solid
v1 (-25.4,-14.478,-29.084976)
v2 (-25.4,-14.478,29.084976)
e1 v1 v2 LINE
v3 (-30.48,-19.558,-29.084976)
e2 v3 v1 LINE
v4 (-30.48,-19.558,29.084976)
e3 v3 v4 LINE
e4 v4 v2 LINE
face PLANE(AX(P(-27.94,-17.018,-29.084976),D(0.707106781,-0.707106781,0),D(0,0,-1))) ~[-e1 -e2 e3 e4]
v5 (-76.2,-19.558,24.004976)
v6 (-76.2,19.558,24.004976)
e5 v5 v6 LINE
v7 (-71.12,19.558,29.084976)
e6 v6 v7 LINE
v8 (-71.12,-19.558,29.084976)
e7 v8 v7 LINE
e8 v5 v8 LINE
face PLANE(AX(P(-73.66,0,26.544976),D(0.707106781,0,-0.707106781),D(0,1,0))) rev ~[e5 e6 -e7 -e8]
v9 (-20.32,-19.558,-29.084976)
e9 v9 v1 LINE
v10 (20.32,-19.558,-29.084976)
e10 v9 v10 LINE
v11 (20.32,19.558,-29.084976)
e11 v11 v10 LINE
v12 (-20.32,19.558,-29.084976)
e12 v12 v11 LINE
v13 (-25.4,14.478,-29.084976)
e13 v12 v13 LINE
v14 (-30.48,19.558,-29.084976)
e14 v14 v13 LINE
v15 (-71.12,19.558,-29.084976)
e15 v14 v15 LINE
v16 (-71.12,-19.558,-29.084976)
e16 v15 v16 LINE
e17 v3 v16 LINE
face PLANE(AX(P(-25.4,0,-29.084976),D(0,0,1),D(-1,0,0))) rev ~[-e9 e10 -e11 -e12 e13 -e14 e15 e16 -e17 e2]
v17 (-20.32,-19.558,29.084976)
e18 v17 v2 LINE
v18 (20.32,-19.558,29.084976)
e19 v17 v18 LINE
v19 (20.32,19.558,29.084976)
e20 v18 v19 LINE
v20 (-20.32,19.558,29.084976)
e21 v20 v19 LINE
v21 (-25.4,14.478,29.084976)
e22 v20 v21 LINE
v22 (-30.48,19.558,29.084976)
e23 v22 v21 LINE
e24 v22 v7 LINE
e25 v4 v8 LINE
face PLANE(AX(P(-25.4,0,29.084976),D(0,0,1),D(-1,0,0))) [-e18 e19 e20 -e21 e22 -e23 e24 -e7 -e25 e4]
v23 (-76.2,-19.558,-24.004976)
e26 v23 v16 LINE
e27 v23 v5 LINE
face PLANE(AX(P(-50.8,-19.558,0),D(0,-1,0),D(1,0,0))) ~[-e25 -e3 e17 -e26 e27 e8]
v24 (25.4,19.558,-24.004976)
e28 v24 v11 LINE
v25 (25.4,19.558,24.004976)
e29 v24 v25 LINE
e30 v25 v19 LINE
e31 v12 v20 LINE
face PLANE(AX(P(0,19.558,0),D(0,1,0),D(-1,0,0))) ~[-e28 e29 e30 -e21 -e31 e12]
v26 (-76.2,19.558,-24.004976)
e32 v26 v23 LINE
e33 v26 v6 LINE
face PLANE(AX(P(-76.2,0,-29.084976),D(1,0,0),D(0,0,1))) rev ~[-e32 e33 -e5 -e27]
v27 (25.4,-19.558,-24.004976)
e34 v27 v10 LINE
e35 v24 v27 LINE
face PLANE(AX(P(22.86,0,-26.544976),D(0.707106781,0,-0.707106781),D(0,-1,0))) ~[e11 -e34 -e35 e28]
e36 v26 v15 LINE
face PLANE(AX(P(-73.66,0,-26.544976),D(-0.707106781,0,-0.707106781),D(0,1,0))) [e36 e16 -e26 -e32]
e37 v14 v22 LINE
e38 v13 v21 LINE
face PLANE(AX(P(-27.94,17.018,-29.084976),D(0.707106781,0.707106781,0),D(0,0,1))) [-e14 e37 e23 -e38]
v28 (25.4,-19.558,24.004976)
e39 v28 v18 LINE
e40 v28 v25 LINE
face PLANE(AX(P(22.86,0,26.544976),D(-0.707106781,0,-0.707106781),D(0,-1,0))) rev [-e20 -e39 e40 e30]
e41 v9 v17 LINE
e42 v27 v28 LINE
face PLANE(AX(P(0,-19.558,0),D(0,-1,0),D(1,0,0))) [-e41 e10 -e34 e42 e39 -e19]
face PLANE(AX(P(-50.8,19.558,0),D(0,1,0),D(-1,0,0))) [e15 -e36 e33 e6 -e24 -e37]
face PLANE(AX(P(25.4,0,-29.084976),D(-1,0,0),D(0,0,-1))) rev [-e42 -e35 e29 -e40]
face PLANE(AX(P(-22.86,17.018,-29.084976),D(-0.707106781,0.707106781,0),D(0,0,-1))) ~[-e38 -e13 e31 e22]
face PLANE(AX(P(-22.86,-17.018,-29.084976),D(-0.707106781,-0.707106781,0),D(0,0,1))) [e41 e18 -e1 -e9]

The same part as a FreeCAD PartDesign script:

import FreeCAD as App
import Part
import Sketcher

V = App.Vector
Q = App.Units.Quantity


def edges_at(feature, points):
    """Names of the edges that pass closest to the given points."""
    edges = feature.Shape.Edges
    near = lambda p: min(range(len(edges)), key=lambda i: edges[i].distToShape(Part.Vertex(*p))[0])
    return sorted({f"Edge{near(p) + 1}" for p in points})


def add_polygon(sketch, points):
    """Adds a closed chain of lines whose ends are joined by coincident constraints."""
    first, n = sketch.GeometryCount, len(points)
    for a, b in zip(points, points[1:] + points[:1]):
        sketch.addGeometry(Part.LineSegment(App.Vector(*a, 0), App.Vector(*b, 0)), False)
    for i in range(n):
        sketch.addConstraint(Sketcher.Constraint("Coincident", first + i, 2, first + (i + 1) % n, 1))

doc = App.newDocument("Part")
body = doc.addObject("PartDesign::Body", "Body")

# Sketch on XZ plane
sketch1 = doc.addObject("Sketcher::SketchObject", "Sketch")
body.addObject(sketch1)
sketch1.AttachmentSupport = (doc.XZ_Plane, [""])
sketch1.MapMode = "FlatFace"
add_polygon(sketch1, [(-25, 29), (-25, -29), (25, -29), (25, 29)])  # lines 0-3
sketch1.addConstraint(Sketcher.Constraint("Vertical", 0))
sketch1.addConstraint(Sketcher.Constraint("Horizontal", 1))
sketch1.addConstraint(Sketcher.Constraint("Vertical", 2))
sketch1.addConstraint(Sketcher.Constraint("Horizontal", 3))
sketch1.addConstraint(Sketcher.Constraint("Symmetric", 0, 2, 2, 2, -1, 1))
sketch1.addConstraint(Sketcher.Constraint("DistanceX", 1, 1, 1, 2, Q("2 in")))
sketch1.addConstraint(Sketcher.Constraint("DistanceY", 0, 2, 0, 1, Q("58.169952 mm")))
pad1 = doc.addObject("PartDesign::Pad", "Pad")
body.addObject(pad1)
pad1.Profile = sketch1
pad1.Length = Q("0.77 in")
doc.recompute()

chamfer = doc.addObject("PartDesign::Chamfer", "Chamfer")
body.addObject(chamfer)
chamfer.Base = (pad1, edges_at(pad1, [(25.4, -9.779, 29.085)]))
chamfer.Size = Q("0.2 in")
doc.recompute()

chamfer2 = doc.addObject("PartDesign::Chamfer", "Chamfer001")
body.addObject(chamfer2)
chamfer2.Base = (chamfer, edges_at(chamfer, [(25.4, -9.779, -29.085), (-25.4, -19.558, 0)]))
chamfer2.Size = Q("0.2 in")
body2 = doc.addObject("PartDesign::Body", "Body001")
doc.recompute()

body2.BaseFeature = body
doc.recompute()

mirroring = doc.addObject("Part::Mirroring", "Mirroring")
mirroring.Source = body
mirroring.Base = V(-25.4, -7.239, 0)
mirroring.Normal = V(-1, 0, 0)
body3 = doc.addObject("PartDesign::Body", "Body002")
body3.BaseFeature = mirroring
boolean = doc.addObject("PartDesign::Boolean", "Boolean")
body2.addObject(boolean)
boolean.Type = "Fuse"
boolean.addObjects([body3])
doc.recompute()
body4 = doc.addObject("PartDesign::Body", "Body003")
doc.recompute()

body4.BaseFeature = body2
doc.recompute()

mirroring2 = doc.addObject("Part::Mirroring", "Mirroring001")
mirroring2.Source = body2
mirroring2.Base = V(-25.4, 0, 0)
mirroring2.Normal = V(0, 1, 0)
body5 = doc.addObject("PartDesign::Body", "Body004")
body5.BaseFeature = mirroring2
boolean2 = doc.addObject("PartDesign::Boolean", "Boolean001")
body4.addObject(boolean2)
boolean2.Type = "Fuse"
boolean2.addObjects([body5])
doc.recompute()
mirroring.Visibility = False
mirroring2.Visibility = False

doc.recompute()
